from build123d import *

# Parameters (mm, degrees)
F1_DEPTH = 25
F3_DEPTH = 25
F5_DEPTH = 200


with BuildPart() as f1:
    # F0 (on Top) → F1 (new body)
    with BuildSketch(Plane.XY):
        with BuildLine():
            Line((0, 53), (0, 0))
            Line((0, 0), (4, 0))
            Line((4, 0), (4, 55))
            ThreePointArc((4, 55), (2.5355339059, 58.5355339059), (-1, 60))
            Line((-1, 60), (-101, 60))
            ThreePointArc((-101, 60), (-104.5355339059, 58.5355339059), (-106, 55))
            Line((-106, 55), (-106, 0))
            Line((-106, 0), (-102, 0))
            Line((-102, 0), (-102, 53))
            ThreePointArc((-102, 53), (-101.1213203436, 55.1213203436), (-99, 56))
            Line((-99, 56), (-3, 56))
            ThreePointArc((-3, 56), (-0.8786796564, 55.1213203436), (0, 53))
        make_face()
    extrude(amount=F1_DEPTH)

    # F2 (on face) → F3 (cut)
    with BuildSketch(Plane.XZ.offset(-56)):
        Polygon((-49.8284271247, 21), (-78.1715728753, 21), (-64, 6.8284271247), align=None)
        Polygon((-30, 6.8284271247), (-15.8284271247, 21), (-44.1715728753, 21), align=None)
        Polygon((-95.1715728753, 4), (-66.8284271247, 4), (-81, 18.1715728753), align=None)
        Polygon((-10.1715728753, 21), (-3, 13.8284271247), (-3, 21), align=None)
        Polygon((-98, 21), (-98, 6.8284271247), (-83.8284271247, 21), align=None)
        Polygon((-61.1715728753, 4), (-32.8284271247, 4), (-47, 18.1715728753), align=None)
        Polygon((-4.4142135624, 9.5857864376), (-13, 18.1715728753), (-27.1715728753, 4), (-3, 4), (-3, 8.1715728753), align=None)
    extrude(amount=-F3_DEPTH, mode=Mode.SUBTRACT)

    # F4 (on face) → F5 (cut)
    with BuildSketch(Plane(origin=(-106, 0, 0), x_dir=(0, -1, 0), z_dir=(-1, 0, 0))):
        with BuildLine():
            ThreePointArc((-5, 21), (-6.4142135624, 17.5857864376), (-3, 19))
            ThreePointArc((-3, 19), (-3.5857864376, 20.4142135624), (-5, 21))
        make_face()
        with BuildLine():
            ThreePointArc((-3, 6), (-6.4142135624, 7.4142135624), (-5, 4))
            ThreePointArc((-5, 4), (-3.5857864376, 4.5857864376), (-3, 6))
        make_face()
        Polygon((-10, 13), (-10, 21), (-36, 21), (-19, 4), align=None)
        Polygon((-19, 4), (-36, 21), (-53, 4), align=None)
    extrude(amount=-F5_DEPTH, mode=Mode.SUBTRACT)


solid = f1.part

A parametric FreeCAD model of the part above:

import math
import FreeCAD as App
import Part
import Sketcher

V = App.Vector
Q = App.Units.Quantity

doc = App.newDocument("Part")
params = doc.addObject("Spreadsheet::Sheet", "Params")
for row, (alias, value) in enumerate([
    ("sketch1_radius", "5 mm"),
    ("sketch1_radius2", "3 mm"),
    ("sketch1_width", "4 mm"),
    ("sketch1_width2", "100 mm"),
    ("sketch1_height", "53 mm"),
    ("pad1_length", "25 mm"),
    ("sketch2_length", "2 mm"),
    ("pocket1_length", "25 mm"),
    ("sketch3_radius", "2 mm"),
    ("sketch3_width", "26 mm"),
    ("sketch3_width2", "34 mm"),
    ("sketch3_height", "8 mm"),
    ("pocket2_length", "200 mm"),
], start=1):
    params.set(f"A{row}", alias)
    params.set(f"B{row}", "=" + value)
    params.setAlias(f"B{row}", alias)

body = doc.addObject("PartDesign::Body", "Body")

sketch1 = body.newObject("Sketcher::SketchObject", "Sketch")
sketch1.AttachmentSupport = (doc.getObject("XY_Plane"), [""])
sketch1.MapMode = "FlatFace"
sketch1.addGeometry([
    Part.LineSegment(V(0, 53, 0), V(0, 0, 0)),
    Part.LineSegment(V(0, 0, 0), V(4, 0, 0)),
    Part.LineSegment(V(4, 0, 0), V(4, 55, 0)),
    Part.ArcOfCircle(Part.Circle(V(-1, 55, 0), V(0, 0, 1), 5), math.radians(0), math.radians(90)),
    Part.LineSegment(V(-1, 60, 0), V(-101, 60, 0)),
    Part.ArcOfCircle(Part.Circle(V(-101, 55, 0), V(0, 0, 1), 5), math.radians(90), math.radians(180)),
    Part.LineSegment(V(-106, 55, 0), V(-106, 0, 0)),
    Part.LineSegment(V(-106, 0, 0), V(-102, 0, 0)),
    Part.LineSegment(V(-102, 0, 0), V(-102, 53, 0)),
    Part.ArcOfCircle(Part.Circle(V(-99, 53, 0), V(0, 0, 1), 3), math.radians(90), math.radians(180)),
    Part.LineSegment(V(-99, 56, 0), V(-3, 56, 0)),
    Part.ArcOfCircle(Part.Circle(V(-3, 53, 0), V(0, 0, 1), 3), math.radians(0), math.radians(90)),
], False)
sketch1.addConstraint([
    Sketcher.Constraint("Coincident", 0, 2, 1, 1),
    Sketcher.Constraint("Coincident", 1, 2, 2, 1),
    Sketcher.Constraint("Tangent", 2, 2, 3, 1),
    Sketcher.Constraint("Tangent", 3, 2, 4, 1),
    Sketcher.Constraint("Tangent", 4, 2, 5, 1),
    Sketcher.Constraint("Tangent", 5, 2, 6, 1),
    Sketcher.Constraint("Coincident", 6, 2, 7, 1),
    Sketcher.Constraint("Coincident", 7, 2, 8, 1),
    Sketcher.Constraint("Tangent", 8, 2, 9, 2),
    Sketcher.Constraint("Tangent", 9, 1, 10, 1),
    Sketcher.Constraint("Tangent", 10, 2, 11, 2),
    Sketcher.Constraint("Tangent", 11, 1, 0, 1),
    Sketcher.Constraint("Vertical", 0),
    Sketcher.Constraint("Horizontal", 1),
    Sketcher.Constraint("Vertical", 2),
    Sketcher.Constraint("Horizontal", 4),
    Sketcher.Constraint("Vertical", 6),
    Sketcher.Constraint("Horizontal", 7),
    Sketcher.Constraint("Vertical", 8),
    Sketcher.Constraint("Horizontal", 10),
    Sketcher.Constraint("Coincident", 0, 2, -1, 1),
    Sketcher.Constraint("Equal", 3, 5),
    Sketcher.Constraint("Equal", 9, 11),
    Sketcher.Constraint("PointOnObject", 6, 2, -1),
    Sketcher.Constraint("Equal", 1, 7),
    Sketcher.Constraint("Radius", 3, Q("5 mm")),
    Sketcher.Constraint("Radius", 9, Q("3 mm")),
    Sketcher.Constraint("DistanceX", 1, 1, 1, 2, Q("4 mm")),
    Sketcher.Constraint("DistanceX", 4, 2, 4, 1, Q("100 mm")),
    Sketcher.Constraint("DistanceY", 0, 2, 0, 1, Q("53 mm")),
    Sketcher.Constraint("DistanceY", 2, 1, 2, 2, Q("55 mm")),
])
sketch1.setExpression("Constraints[25]", "Params.sketch1_radius")
sketch1.setExpression("Constraints[26]", "Params.sketch1_radius2")
sketch1.setExpression("Constraints[27]", "Params.sketch1_width")
sketch1.setExpression("Constraints[28]", "Params.sketch1_width2")
sketch1.setExpression("Constraints[29]", "Params.sketch1_height")
pad1 = body.newObject("PartDesign::Pad", "Pad")
pad1.Profile = sketch1
pad1.setExpression("Length", "Params.pad1_length")

sketch2 = body.newObject("Sketcher::SketchObject", "Sketch001")
sketch2.AttachmentSupport = (doc.getObject("XZ_Plane"), [""])
sketch2.MapMode = "FlatFace"
sketch2.AttachmentOffset = App.Placement(V(0, 0, -56), App.Rotation())
sketch2.addGeometry([
    Part.LineSegment(V(-49.8, 21, 0), V(-78.2, 21, 0)),
    Part.LineSegment(V(-78.2, 21, 0), V(-64, 6.8, 0)),
    Part.LineSegment(V(-64, 6.8, 0), V(-49.8, 21, 0)),
    Part.LineSegment(V(-30, 6.8, 0), V(-15.8, 21, 0)),
    Part.LineSegment(V(-15.8, 21, 0), V(-44.2, 21, 0)),
    Part.LineSegment(V(-44.2, 21, 0), V(-30, 6.8, 0)),
    Part.LineSegment(V(-95.2, 4, 0), V(-66.8, 4, 0)),
    Part.LineSegment(V(-66.8, 4, 0), V(-81, 18.2, 0)),
    Part.LineSegment(V(-81, 18.2, 0), V(-95.2, 4, 0)),
    Part.LineSegment(V(-10.2, 21, 0), V(-3, 13.8, 0)),
    Part.LineSegment(V(-3, 13.8, 0), V(-3, 21, 0)),
    Part.LineSegment(V(-3, 21, 0), V(-10.2, 21, 0)),
    Part.LineSegment(V(-98, 21, 0), V(-98, 6.8, 0)),
    Part.LineSegment(V(-98, 6.8, 0), V(-83.8, 21, 0)),
    Part.LineSegment(V(-83.8, 21, 0), V(-98, 21, 0)),
    Part.LineSegment(V(-61.2, 4, 0), V(-32.8, 4, 0)),
    Part.LineSegment(V(-32.8, 4, 0), V(-47, 18.2, 0)),
    Part.LineSegment(V(-47, 18.2, 0), V(-61.2, 4, 0)),
    Part.LineSegment(V(-4.4, 9.6, 0), V(-13, 18.2, 0)),
    Part.LineSegment(V(-13, 18.2, 0), V(-27.2, 4, 0)),
    Part.LineSegment(V(-27.2, 4, 0), V(-3, 4, 0)),
    Part.LineSegment(V(-3, 4, 0), V(-3, 8.2, 0)),
    Part.LineSegment(V(-3, 8.2, 0), V(-4.4, 9.6, 0)),
], False)
sketch2.addConstraint([
    Sketcher.Constraint("Coincident", 0, 2, 1, 1),
    Sketcher.Constraint("Coincident", 1, 2, 2, 1),
    Sketcher.Constraint("Coincident", 2, 2, 0, 1),
    Sketcher.Constraint("Coincident", 3, 2, 4, 1),
    Sketcher.Constraint("Coincident", 4, 2, 5, 1),
    Sketcher.Constraint("Coincident", 5, 2, 3, 1),
    Sketcher.Constraint("Coincident", 6, 2, 7, 1),
    Sketcher.Constraint("Coincident", 7, 2, 8, 1),
    Sketcher.Constraint("Coincident", 8, 2, 6, 1),
    Sketcher.Constraint("Coincident", 9, 2, 10, 1),
    Sketcher.Constraint("Coincident", 10, 2, 11, 1),
    Sketcher.Constraint("Coincident", 11, 2, 9, 1),
    Sketcher.Constraint("Coincident", 12, 2, 13, 1),
    Sketcher.Constraint("Coincident", 13, 2, 14, 1),
    Sketcher.Constraint("Coincident", 14, 2, 12, 1),
    Sketcher.Constraint("Coincident", 15, 2, 16, 1),
    Sketcher.Constraint("Coincident", 16, 2, 17, 1),
    Sketcher.Constraint("Coincident", 17, 2, 15, 1),
    Sketcher.Constraint("Coincident", 18, 2, 19, 1),
    Sketcher.Constraint("Coincident", 19, 2, 20, 1),
    Sketcher.Constraint("Coincident", 20, 2, 21, 1),
    Sketcher.Constraint("Coincident", 21, 2, 22, 1),
    Sketcher.Constraint("Coincident", 22, 2, 18, 1),
    Sketcher.Constraint("Horizontal", 0),
    Sketcher.Constraint("Horizontal", 4),
    Sketcher.Constraint("Horizontal", 6),
    Sketcher.Constraint("Vertical", 10),
    Sketcher.Constraint("Horizontal", 11),
    Sketcher.Constraint("Vertical", 12),
    Sketcher.Constraint("Horizontal", 14),
    Sketcher.Constraint("Horizontal", 15),
    Sketcher.Constraint("Horizontal", 20),
    Sketcher.Constraint("Vertical", 21),
    Sketcher.Constraint("Perpendicular", 1, 2),
    Sketcher.Constraint("Parallel", 2, 3),
    Sketcher.Constraint("Perpendicular", 3, 5),
    Sketcher.Constraint("Parallel", 5, 7),
    Sketcher.Constraint("Perpendicular", 7, 8),
    Sketcher.Constraint("Perpendicular", 8, 9),
    Sketcher.Constraint("Perpendicular", 9, 13),
    Sketcher.Constraint("Perpendicular", 13, 16),
    Sketcher.Constraint("Perpendicular", 16, 17),
    Sketcher.Constraint("Perpendicular", 17, 18),
    Sketcher.Constraint("Perpendicular", 18, 19),
    Sketcher.Constraint("Perpendicular", 19, 22),
    Sketcher.Constraint("Horizontal", 2, 2, 3, 2),
    Sketcher.Constraint("Horizontal", 1, 2, 5, 2),
    Sketcher.Constraint("Horizontal", 4, 2, 10, 2),
    Sketcher.Constraint("Horizontal", 5, 2, 12, 2),
    Sketcher.Constraint("Horizontal", 11, 2, 13, 2),
    Sketcher.Constraint("Horizontal", 8, 2, 15, 2),
    Sketcher.Constraint("Horizontal", 7, 2, 16, 2),
    Sketcher.Constraint("Horizontal", 16, 2, 18, 2),
    Sketcher.Constraint("Horizontal", 17, 2, 19, 2),
    Sketcher.Constraint("Vertical", 10, 2, 20, 2),
    Sketcher.Constraint("Equal", 4, 6),
    Sketcher.Constraint("Equal", 11, 10),
    Sketcher.Constraint("Distance", 22, Q("2 mm")),
    Sketcher.Constraint("DistanceY", -1, 1, 0, 2, Q("21 mm")),
    Sketcher.Constraint("DistanceX", 1, 2, -1, 1, Q("64 mm")),
    Sketcher.Constraint("DistanceX", 5, 2, -1, 1, Q("30 mm")),
    Sketcher.Constraint("DistanceY", -1, 1, 6, 2, Q("4 mm")),
    Sketcher.Constraint("DistanceX", 7, 2, -1, 1, Q("81 mm")),
    Sketcher.Constraint("DistanceX", 9, 2, -1, 1, Q("3 mm")),
    Sketcher.Constraint("DistanceX", 12, 2, -1, 1, Q("98 mm")),
    Sketcher.Constraint("DistanceX", 16, 2, -1, 1, Q("47 mm")),
    Sketcher.Constraint("DistanceX", 18, 2, -1, 1, Q("13 mm")),
    Sketcher.Constraint("DistanceY", 5, 2, 9, 2, Q("7 mm")),
    Sketcher.Constraint("Distance", 1, Q("20.041631 mm")),
])
sketch2.setExpression("Constraints[57]", "Params.sketch2_length")
pocket1 = body.newObject("PartDesign::Pocket", "Pocket")
pocket1.Profile = sketch2
pocket1.setExpression("Length", "Params.pocket1_length")

sketch3 = body.newObject("Sketcher::SketchObject", "Sketch002")
sketch3.AttachmentSupport = (doc.getObject("YZ_Plane"), [""])
sketch3.MapMode = "FlatFace"
sketch3.AttachmentOffset = App.Placement(V(0, 0, -106), App.Rotation())
sketch3.addGeometry([
    Part.ArcOfCircle(Part.Circle(V(5, 19, 0), V(0, 0, 1), 2), math.radians(180), math.radians(450)),
    Part.ArcOfCircle(Part.Circle(V(5, 19, 0), V(0, 0, 1), 2), math.radians(90), math.radians(180)),
    Part.ArcOfCircle(Part.Circle(V(5, 6, 0), V(0, 0, 1), 2), math.radians(-90), math.radians(180)),
    Part.ArcOfCircle(Part.Circle(V(5, 6, 0), V(0, 0, 1), 2), math.radians(180), math.radians(270)),
    Part.LineSegment(V(10, 13, 0), V(10, 21, 0)),
    Part.LineSegment(V(10, 21, 0), V(36, 21, 0)),
    Part.LineSegment(V(36, 21, 0), V(53, 4, 0)),
    Part.LineSegment(V(53, 4, 0), V(19, 4, 0)),
    Part.LineSegment(V(19, 4, 0), V(10, 13, 0)),
], False)
sketch3.addConstraint([
    Sketcher.Constraint("Tangent", 0, 1, 1, 2),
    Sketcher.Constraint("Coincident", 1, 1, 0, 2),
    Sketcher.Constraint("Tangent", 2, 1, 3, 2),
    Sketcher.Constraint("Coincident", 3, 1, 2, 2),
    Sketcher.Constraint("Coincident", 4, 2, 5, 1),
    Sketcher.Constraint("Coincident", 5, 2, 6, 1),
    Sketcher.Constraint("Coincident", 6, 2, 7, 1),
    Sketcher.Constraint("Coincident", 7, 2, 8, 1),
    Sketcher.Constraint("Coincident", 8, 2, 4, 1),
    Sketcher.Constraint("Vertical", 4),
    Sketcher.Constraint("Horizontal", 5),
    Sketcher.Constraint("Horizontal", 7),
    Sketcher.Constraint("Equal", 1, 2),
    Sketcher.Constraint("Parallel", 6, 8),
    Sketcher.Constraint("Horizontal", 1, 3, 0, 1),
    Sketcher.Constraint("Horizontal", 2, 3, 3, 1),
    Sketcher.Constraint("Horizontal", 1, 1, 4, 2),
    Sketcher.Constraint("Horizontal", 2, 1, 6, 2),
    Sketcher.Constraint("Vertical", 1, 3, 2, 3),
    Sketcher.Constraint("Vertical", 3, 3, 1, 1),
    Sketcher.Constraint("Vertical", 1, 1, 2, 1),
    Sketcher.Constraint("Radius", 0, Q("2 mm")),
    Sketcher.Constraint("DistanceX", 5, 1, 5, 2, Q("26 mm")),
    Sketcher.Constraint("DistanceX", 7, 2, 7, 1, Q("34 mm")),
    Sketcher.Constraint("DistanceY", 4, 1, 4, 2, Q("8 mm")),
    Sketcher.Constraint("DistanceX", -1, 1, 0, 3, Q("5 mm")),
    Sketcher.Constraint("DistanceY", -1, 1, 0, 3, Q("19 mm")),
    Sketcher.Constraint("DistanceY", -1, 1, 2, 3, Q("6 mm")),
    Sketcher.Constraint("DistanceX", -1, 1, 4, 2, Q("10 mm")),
])
sketch3.setExpression("Constraints[21]", "Params.sketch3_radius")
sketch3.setExpression("Constraints[22]", "Params.sketch3_width")
sketch3.setExpression("Constraints[23]", "Params.sketch3_width2")
sketch3.setExpression("Constraints[24]", "Params.sketch3_height")
pocket2 = body.newObject("PartDesign::Pocket", "Pocket001")
pocket2.Profile = sketch3
pocket2.setExpression("Length", "Params.pocket2_length")
pocket2.Reversed = True

doc.recompute()
